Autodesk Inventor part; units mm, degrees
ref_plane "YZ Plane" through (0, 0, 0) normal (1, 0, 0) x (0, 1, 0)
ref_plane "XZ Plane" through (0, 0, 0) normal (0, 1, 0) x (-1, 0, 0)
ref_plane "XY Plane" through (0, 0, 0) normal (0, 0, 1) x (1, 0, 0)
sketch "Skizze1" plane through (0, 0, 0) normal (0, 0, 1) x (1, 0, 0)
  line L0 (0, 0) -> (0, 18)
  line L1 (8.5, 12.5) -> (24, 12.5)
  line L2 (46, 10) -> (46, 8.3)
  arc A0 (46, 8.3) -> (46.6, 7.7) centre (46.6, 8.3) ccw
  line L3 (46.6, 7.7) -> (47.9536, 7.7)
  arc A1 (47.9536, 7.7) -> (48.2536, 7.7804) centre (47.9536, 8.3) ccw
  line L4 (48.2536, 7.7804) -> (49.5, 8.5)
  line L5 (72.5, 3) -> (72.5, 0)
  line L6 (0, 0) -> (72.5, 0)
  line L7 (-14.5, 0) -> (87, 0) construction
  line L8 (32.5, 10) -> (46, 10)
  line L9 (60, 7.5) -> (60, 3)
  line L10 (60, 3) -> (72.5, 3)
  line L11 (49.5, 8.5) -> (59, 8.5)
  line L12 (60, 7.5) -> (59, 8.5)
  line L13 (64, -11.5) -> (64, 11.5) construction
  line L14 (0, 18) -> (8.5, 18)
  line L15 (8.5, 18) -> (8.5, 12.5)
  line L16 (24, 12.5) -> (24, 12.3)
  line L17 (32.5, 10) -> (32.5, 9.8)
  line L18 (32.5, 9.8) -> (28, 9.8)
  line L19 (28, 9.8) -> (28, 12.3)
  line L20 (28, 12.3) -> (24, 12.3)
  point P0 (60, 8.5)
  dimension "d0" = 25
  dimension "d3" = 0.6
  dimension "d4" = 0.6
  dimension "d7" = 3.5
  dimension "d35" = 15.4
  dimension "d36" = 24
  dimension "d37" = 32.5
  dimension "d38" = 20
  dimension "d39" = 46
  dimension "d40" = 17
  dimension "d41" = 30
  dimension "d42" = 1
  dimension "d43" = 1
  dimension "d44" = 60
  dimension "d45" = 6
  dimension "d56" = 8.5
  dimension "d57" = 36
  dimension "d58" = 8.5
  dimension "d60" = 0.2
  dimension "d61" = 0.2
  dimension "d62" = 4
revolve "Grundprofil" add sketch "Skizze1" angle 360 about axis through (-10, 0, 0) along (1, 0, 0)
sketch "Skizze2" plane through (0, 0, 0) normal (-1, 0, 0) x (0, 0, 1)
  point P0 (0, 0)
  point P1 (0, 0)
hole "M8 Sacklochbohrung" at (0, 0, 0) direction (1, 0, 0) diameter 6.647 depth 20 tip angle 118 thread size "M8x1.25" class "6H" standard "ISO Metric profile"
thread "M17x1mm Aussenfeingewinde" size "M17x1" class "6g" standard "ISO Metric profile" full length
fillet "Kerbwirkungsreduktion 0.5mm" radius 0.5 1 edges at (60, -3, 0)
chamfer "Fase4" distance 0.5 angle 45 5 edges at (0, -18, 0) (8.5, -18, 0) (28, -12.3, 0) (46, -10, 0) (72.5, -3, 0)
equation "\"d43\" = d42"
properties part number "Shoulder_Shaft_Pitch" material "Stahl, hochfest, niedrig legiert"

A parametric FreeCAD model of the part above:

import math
import FreeCAD as App
import Part
import Sketcher
from FreeCAD import Vector
Q = App.Units.Quantity


def edges_at(feature, points):
    """Names of the edges that pass closest to the given points."""
    edges = feature.Shape.Edges
    near = lambda p: min(range(len(edges)), key=lambda i: edges[i].distToShape(Part.Vertex(*p))[0])
    return sorted({f"Edge{near(p) + 1}" for p in points})

doc = App.newDocument("Part")
body = doc.addObject("PartDesign::Body", "Body")

sketch1 = body.newObject("Sketcher::SketchObject", "Sketch")
sketch1.AttachmentSupport = (doc.getObject("XY_Plane"), [""])
sketch1.MapMode = "FlatFace"
sketch1.addGeometry([
    Part.LineSegment(Vector(0, 18, 0), Vector(0, 0, 0)),
    Part.LineSegment(Vector(0, 0, 0), Vector(72.5, 0, 0)),
    Part.LineSegment(Vector(72.5, 0, 0), Vector(72.5, 3, 0)),
    Part.LineSegment(Vector(72.5, 3, 0), Vector(60, 3, 0)),
    Part.LineSegment(Vector(60, 3, 0), Vector(60, 7.5, 0)),
    Part.LineSegment(Vector(60, 7.5, 0), Vector(59, 8.5, 0)),
    Part.LineSegment(Vector(59, 8.5, 0), Vector(49.5, 8.5, 0)),
    Part.LineSegment(Vector(49.5, 8.5, 0), Vector(48.25, 7.78, 0)),
    Part.ArcOfCircle(Part.Circle(Vector(47.95, 8.3, 0), Vector(0, 0, 1), 0.6), math.radians(-90), math.radians(-60)),
    Part.LineSegment(Vector(47.95, 7.7, 0), Vector(46.6, 7.7, 0)),
    Part.ArcOfCircle(Part.Circle(Vector(46.6, 8.3, 0), Vector(0, 0, 1), 0.6), math.radians(180), math.radians(270)),
    Part.LineSegment(Vector(46, 8.3, 0), Vector(46, 10, 0)),
    Part.LineSegment(Vector(46, 10, 0), Vector(32.5, 10, 0)),
    Part.LineSegment(Vector(32.5, 10, 0), Vector(32.5, 9.8, 0)),
    Part.LineSegment(Vector(32.5, 9.8, 0), Vector(28, 9.8, 0)),
    Part.LineSegment(Vector(28, 9.8, 0), Vector(28, 12.3, 0)),
    Part.LineSegment(Vector(28, 12.3, 0), Vector(24, 12.3, 0)),
    Part.LineSegment(Vector(24, 12.3, 0), Vector(24, 12.5, 0)),
    Part.LineSegment(Vector(24, 12.5, 0), Vector(8.5, 12.5, 0)),
    Part.LineSegment(Vector(8.5, 12.5, 0), Vector(8.5, 18, 0)),
    Part.LineSegment(Vector(8.5, 18, 0), Vector(0, 18, 0)),
], False)
sketch1.addConstraint([
    Sketcher.Constraint("Coincident", 0, 2, 1, 1),
    Sketcher.Constraint("Coincident", 1, 2, 2, 1),
    Sketcher.Constraint("Coincident", 2, 2, 3, 1),
    Sketcher.Constraint("Coincident", 3, 2, 4, 1),
    Sketcher.Constraint("Coincident", 4, 2, 5, 1),
    Sketcher.Constraint("Coincident", 5, 2, 6, 1),
    Sketcher.Constraint("Coincident", 6, 2, 7, 1),
    Sketcher.Constraint("Tangent", 7, 2, 8, 2),
    Sketcher.Constraint("Tangent", 8, 1, 9, 1),
    Sketcher.Constraint("Tangent", 9, 2, 10, 2),
    Sketcher.Constraint("Tangent", 10, 1, 11, 1),
    Sketcher.Constraint("Coincident", 11, 2, 12, 1),
    Sketcher.Constraint("Coincident", 12, 2, 13, 1),
    Sketcher.Constraint("Coincident", 13, 2, 14, 1),
    Sketcher.Constraint("Coincident", 14, 2, 15, 1),
    Sketcher.Constraint("Coincident", 15, 2, 16, 1),
    Sketcher.Constraint("Coincident", 16, 2, 17, 1),
    Sketcher.Constraint("Coincident", 17, 2, 18, 1),
    Sketcher.Constraint("Coincident", 18, 2, 19, 1),
    Sketcher.Constraint("Coincident", 19, 2, 20, 1),
    Sketcher.Constraint("Coincident", 20, 2, 0, 1),
    Sketcher.Constraint("Vertical", 0),
    Sketcher.Constraint("Horizontal", 1),
    Sketcher.Constraint("Vertical", 2),
    Sketcher.Constraint("Horizontal", 3),
    Sketcher.Constraint("Vertical", 4),
    Sketcher.Constraint("Horizontal", 6),
    Sketcher.Constraint("Horizontal", 9),
    Sketcher.Constraint("Vertical", 11),
    Sketcher.Constraint("Horizontal", 12),
    Sketcher.Constraint("Vertical", 13),
    Sketcher.Constraint("Horizontal", 14),
    Sketcher.Constraint("Vertical", 15),
    Sketcher.Constraint("Horizontal", 16),
    Sketcher.Constraint("Vertical", 17),
    Sketcher.Constraint("Horizontal", 18),
    Sketcher.Constraint("Vertical", 19),
    Sketcher.Constraint("Horizontal", 20),
    Sketcher.Constraint("Coincident", 0, 2, -1, 1),
    Sketcher.Constraint("Equal", 8, 10),
    Sketcher.Constraint("Equal", 14, 4),
    Sketcher.Constraint("Equal", 13, 17),
    Sketcher.Constraint("Radius", 8, Q("0.6 mm")),
    Sketcher.Constraint("DistanceX", 16, 2, 16, 1, Q("4 mm")),
    Sketcher.Constraint("DistanceX", 20, 2, 20, 1, Q("8.5 mm")),
    Sketcher.Constraint("DistanceY", 13, 2, 13, 1, Q("0.2 mm")),
    Sketcher.Constraint("DistanceX", -1, 1, 3, 2, Q("60 mm")),
    Sketcher.Constraint("DistanceX", -1, 1, 10, 1, Q("46 mm")),
    Sketcher.Constraint("DistanceX", -1, 1, 16, 2, Q("24 mm")),
    Sketcher.Constraint("DistanceX", 5, 2, 4, 2, Q("1 mm")),
    Sketcher.Constraint("DistanceY", 4, 2, 5, 2, Q("1 mm")),
    Sketcher.Constraint("DistanceY", 10, 1, 15, 2, Q("4 mm")),
    Sketcher.Constraint("DistanceY", -1, 1, 5, 2, Q("8.5 mm")),
    Sketcher.Constraint("DistanceX", -1, 1, 12, 2, Q("32.5 mm")),
    Sketcher.Constraint("DistanceY", 8, 3, 5, 2, Q("0.2 mm")),
    Sketcher.Constraint("DistanceY", 0, 2, 0, 1, Q("18 mm")),
    Sketcher.Constraint("Angle", 7, Q("-150.0003 deg")),
    Sketcher.Constraint("DistanceX", 1, 1, 1, 2, Q("72.5 mm")),
    Sketcher.Constraint("DistanceX", 6, 2, 6, 1, Q("9.5 mm")),
    Sketcher.Constraint("DistanceY", 11, 1, 11, 2, Q("1.7 mm")),
])
revolution = body.newObject("PartDesign::Revolution", "Revolution")
revolution.Profile = sketch1
revolution.ReferenceAxis = (sketch1, ["H_Axis"])
revolution.Angle = 360

sketch2 = body.newObject("Sketcher::SketchObject", "Sketch001")
sketch2.AttachmentSupport = (doc.getObject("YZ_Plane"), [""])
sketch2.MapMode = "FlatFace"
sketch2.addGeometry(Part.Circle(Vector(0, 0, 0), Vector(0, 0, 1), 3.3), False)
sketch2.addConstraint([
    Sketcher.Constraint("Coincident", 0, 3, -1, 1),
    Sketcher.Constraint("Diameter", 0, Q("6.647 mm")),
])
doc.recompute()
hole = body.newObject("PartDesign::Hole", "Hole")
hole.Profile = sketch2
hole.ThreadType = "None"
hole.Diameter = 6.647
hole.DepthType = "Dimension"
hole.Depth = 20
hole.DrillPoint = "Angled"
hole.DrillPointAngle = 118
hole.Reversed = True
doc.recompute()

fillet = body.newObject("PartDesign::Fillet", "Fillet")
fillet.Base = (hole, edges_at(hole, [(60, -3, 0)]))
fillet.Radius = 0.5
doc.recompute()

chamfer = body.newObject("PartDesign::Chamfer", "Chamfer")
chamfer.Base = (fillet, edges_at(fillet, [
    (0, -18, 0),
    (8.5, -18, 0),
    (28, -12.3, 0),
    (46, -10, 0),
    (72.5, -3, 0),
]))
chamfer.Size = 0.5

doc.recompute()
